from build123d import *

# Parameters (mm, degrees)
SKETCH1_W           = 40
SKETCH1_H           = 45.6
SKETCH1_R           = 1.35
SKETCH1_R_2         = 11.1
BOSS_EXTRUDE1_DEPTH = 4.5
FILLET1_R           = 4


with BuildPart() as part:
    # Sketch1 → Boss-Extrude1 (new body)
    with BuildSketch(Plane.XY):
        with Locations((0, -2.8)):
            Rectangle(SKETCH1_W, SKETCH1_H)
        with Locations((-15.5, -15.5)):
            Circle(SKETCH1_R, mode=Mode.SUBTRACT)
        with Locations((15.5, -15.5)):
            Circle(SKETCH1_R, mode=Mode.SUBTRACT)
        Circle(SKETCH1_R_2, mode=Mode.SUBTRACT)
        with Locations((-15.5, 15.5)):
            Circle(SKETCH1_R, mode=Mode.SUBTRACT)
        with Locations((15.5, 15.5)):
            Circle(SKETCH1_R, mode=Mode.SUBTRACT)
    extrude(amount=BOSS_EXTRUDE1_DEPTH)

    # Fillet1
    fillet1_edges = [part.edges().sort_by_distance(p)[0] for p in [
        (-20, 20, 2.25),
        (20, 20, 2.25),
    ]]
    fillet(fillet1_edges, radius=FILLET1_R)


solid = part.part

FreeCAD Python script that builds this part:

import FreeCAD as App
import Part
import Sketcher

V = App.Vector
Q = App.Units.Quantity


def edges_at(feature, points):
    """Names of the edges that pass closest to the given points."""
    edges = feature.Shape.Edges
    near = lambda p: min(range(len(edges)), key=lambda i: edges[i].distToShape(Part.Vertex(*p))[0])
    return sorted({f"Edge{near(p) + 1}" for p in points})

doc = App.newDocument("Part")
body = doc.addObject("PartDesign::Body", "Body")

# Sketch on XY plane
sketch1 = doc.addObject("Sketcher::SketchObject", "Sketch")
body.addObject(sketch1)
sketch1.AttachmentSupport = (doc.XY_Plane, [""])
sketch1.MapMode = "FlatFace"
sketch1.addGeometry([
    Part.LineSegment(V(-20, 20, 0), V(-20, -25.6, 0)),  # 0
    Part.LineSegment(V(-20, -25.6, 0), V(20, -25.6, 0)),  # 1
    Part.LineSegment(V(20, -25.6, 0), V(20, 20, 0)),  # 2
    Part.LineSegment(V(20, 20, 0), V(-20, 20, 0)),  # 3
    Part.Circle(V(-15.5, -15.5, 0), V(0, 0, 1), 1.35),  # 4
    Part.Circle(V(15.5, -15.5, 0), V(0, 0, 1), 1.35),  # 5
    Part.Circle(V(-15.5, 15.5, 0), V(0, 0, 1), 1.35),  # 6
    Part.Circle(V(0, 0, 0), V(0, 0, 1), 11.1),  # 7
    Part.Circle(V(15.5, 15.5, 0), V(0, 0, 1), 1.35),  # 8
], False)
sketch1.addConstraint([
    Sketcher.Constraint("Coincident", 0, 2, 1, 1),
    Sketcher.Constraint("Coincident", 1, 2, 2, 1),
    Sketcher.Constraint("Coincident", 2, 2, 3, 1),
    Sketcher.Constraint("Coincident", 3, 2, 0, 1),
    Sketcher.Constraint("Vertical", 0),
    Sketcher.Constraint("Horizontal", 1),
    Sketcher.Constraint("Vertical", 2),
    Sketcher.Constraint("Horizontal", 3),
    Sketcher.Constraint("Coincident", 7, 3, -1, 1),
    Sketcher.Constraint("Equal", 4, 5),
    Sketcher.Constraint("Equal", 5, 6),
    Sketcher.Constraint("Equal", 6, 8),
    Sketcher.Constraint("Symmetric", 5, 3, 6, 3, -1, 1),
    Sketcher.Constraint("Symmetric", 4, 3, 8, 3, -1, 1),
    Sketcher.Constraint("Symmetric", 4, 3, 5, 3, -2),
    Sketcher.Constraint("Diameter", 4, Q("2.7 mm")),
    Sketcher.Constraint("Diameter", 7, Q("22.2 mm")),
    Sketcher.Constraint("DistanceX", 1, 1, 1, 2, Q("40 mm")),
    Sketcher.Constraint("DistanceY", 0, 2, 0, 1, Q("45.6 mm")),
    Sketcher.Constraint("DistanceX", 0, 2, -1, 1, Q("20 mm")),
    Sketcher.Constraint("DistanceY", -1, 1, 2, 2, Q("20 mm")),
    Sketcher.Constraint("DistanceX", 4, 3, 5, 3, Q("31 mm")),
    Sketcher.Constraint("DistanceY", 4, 3, 6, 3, Q("31 mm")),
])
pad1 = doc.addObject("PartDesign::Pad", "Pad")
body.addObject(pad1)
pad1.Profile = sketch1
pad1.Length = 4.5
doc.recompute()

fillet = doc.addObject("PartDesign::Fillet", "Fillet")
body.addObject(fillet)
fillet.Base = (pad1, edges_at(pad1, [(-20, 20, 2.25), (20, 20, 2.25)]))
fillet.Radius = 4

doc.recompute()
